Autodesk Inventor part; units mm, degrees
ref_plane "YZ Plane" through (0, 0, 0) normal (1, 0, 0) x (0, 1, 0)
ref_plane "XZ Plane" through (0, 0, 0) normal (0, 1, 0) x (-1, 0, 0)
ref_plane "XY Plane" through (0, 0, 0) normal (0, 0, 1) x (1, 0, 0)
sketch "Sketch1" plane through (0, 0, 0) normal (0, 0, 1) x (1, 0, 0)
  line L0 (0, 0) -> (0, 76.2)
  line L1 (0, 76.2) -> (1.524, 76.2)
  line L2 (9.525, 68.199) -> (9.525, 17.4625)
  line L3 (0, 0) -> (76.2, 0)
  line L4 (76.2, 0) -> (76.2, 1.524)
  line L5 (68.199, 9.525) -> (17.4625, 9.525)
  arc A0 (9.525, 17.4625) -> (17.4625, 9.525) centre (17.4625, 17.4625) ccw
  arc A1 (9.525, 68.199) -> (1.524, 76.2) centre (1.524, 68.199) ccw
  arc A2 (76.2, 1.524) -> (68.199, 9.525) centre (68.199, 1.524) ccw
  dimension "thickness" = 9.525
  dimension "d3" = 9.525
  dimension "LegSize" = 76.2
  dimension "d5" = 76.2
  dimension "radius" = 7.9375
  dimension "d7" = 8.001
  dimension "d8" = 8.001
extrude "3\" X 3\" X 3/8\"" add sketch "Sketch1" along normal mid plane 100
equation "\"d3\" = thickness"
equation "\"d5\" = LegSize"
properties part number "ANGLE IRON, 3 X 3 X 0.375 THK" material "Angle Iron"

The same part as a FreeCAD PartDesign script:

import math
import FreeCAD as App
import Part
import Sketcher
from FreeCAD import Vector
Q = App.Units.Quantity

doc = App.newDocument("Part")
body = doc.addObject("PartDesign::Body", "Body")

# Sketch on XY plane
sketch1 = body.newObject("Sketcher::SketchObject", "Sketch")
sketch1.AttachmentSupport = (doc.getObject("XY_Plane"), [""])
sketch1.MapMode = "FlatFace"
sketch1.addGeometry([
    Part.LineSegment(Vector(0, 76.2, 0), Vector(0, 0, 0)),  # 0
    Part.LineSegment(Vector(0, 0, 0), Vector(76.2, 0, 0)),  # 1
    Part.LineSegment(Vector(76.2, 0, 0), Vector(76.2, 1.524, 0)),  # 2
    Part.ArcOfCircle(Part.Circle(Vector(68.199, 1.524, 0), Vector(0, 0, 1), 8.001), math.radians(0), math.radians(90)),  # 3
    Part.LineSegment(Vector(68.199, 9.525, 0), Vector(17.4625, 9.525, 0)),  # 4
    Part.ArcOfCircle(Part.Circle(Vector(17.4625, 17.4625, 0), Vector(0, 0, 1), 7.9375), math.radians(180), math.radians(270)),  # 5
    Part.LineSegment(Vector(9.525, 17.4625, 0), Vector(9.525, 68.199, 0)),  # 6
    Part.ArcOfCircle(Part.Circle(Vector(1.524, 68.199, 0), Vector(0, 0, 1), 8.001), math.radians(0), math.radians(90)),  # 7
    Part.LineSegment(Vector(1.524, 76.2, 0), Vector(0, 76.2, 0)),  # 8
], False)
sketch1.addConstraint([
    Sketcher.Constraint("Coincident", 0, 2, 1, 1),
    Sketcher.Constraint("Coincident", 1, 2, 2, 1),
    Sketcher.Constraint("Tangent", 2, 2, 3, 1),
    Sketcher.Constraint("Tangent", 3, 2, 4, 1),
    Sketcher.Constraint("Tangent", 4, 2, 5, 2),
    Sketcher.Constraint("Tangent", 5, 1, 6, 1),
    Sketcher.Constraint("Tangent", 6, 2, 7, 1),
    Sketcher.Constraint("Tangent", 7, 2, 8, 1),
    Sketcher.Constraint("Coincident", 8, 2, 0, 1),
    Sketcher.Constraint("Vertical", 0),
    Sketcher.Constraint("Horizontal", 1),
    Sketcher.Constraint("Vertical", 2),
    Sketcher.Constraint("Horizontal", 4),
    Sketcher.Constraint("Vertical", 6),
    Sketcher.Constraint("Horizontal", 8),
    Sketcher.Constraint("Coincident", 0, 2, -1, 1),
    Sketcher.Constraint("Equal", 3, 7),
    Sketcher.Constraint("Equal", 1, 0),
    Sketcher.Constraint("Equal", 8, 2),
    Sketcher.Constraint("DistanceX", 1, 1, 1, 2, Q("3 in")),
    Sketcher.Constraint("Radius", 3, Q("0.315 in")),
    Sketcher.Constraint("Radius", 5, Q("0.3125 in")),
    Sketcher.Constraint("DistanceY", -1, 1, 3, 2, Q("0.375 in")),
])
pad1 = body.newObject("PartDesign::Pad", "Pad")
pad1.Profile = sketch1
pad1.Length = Q("3.9370079 in")
pad1.Midplane = True

doc.recompute()
